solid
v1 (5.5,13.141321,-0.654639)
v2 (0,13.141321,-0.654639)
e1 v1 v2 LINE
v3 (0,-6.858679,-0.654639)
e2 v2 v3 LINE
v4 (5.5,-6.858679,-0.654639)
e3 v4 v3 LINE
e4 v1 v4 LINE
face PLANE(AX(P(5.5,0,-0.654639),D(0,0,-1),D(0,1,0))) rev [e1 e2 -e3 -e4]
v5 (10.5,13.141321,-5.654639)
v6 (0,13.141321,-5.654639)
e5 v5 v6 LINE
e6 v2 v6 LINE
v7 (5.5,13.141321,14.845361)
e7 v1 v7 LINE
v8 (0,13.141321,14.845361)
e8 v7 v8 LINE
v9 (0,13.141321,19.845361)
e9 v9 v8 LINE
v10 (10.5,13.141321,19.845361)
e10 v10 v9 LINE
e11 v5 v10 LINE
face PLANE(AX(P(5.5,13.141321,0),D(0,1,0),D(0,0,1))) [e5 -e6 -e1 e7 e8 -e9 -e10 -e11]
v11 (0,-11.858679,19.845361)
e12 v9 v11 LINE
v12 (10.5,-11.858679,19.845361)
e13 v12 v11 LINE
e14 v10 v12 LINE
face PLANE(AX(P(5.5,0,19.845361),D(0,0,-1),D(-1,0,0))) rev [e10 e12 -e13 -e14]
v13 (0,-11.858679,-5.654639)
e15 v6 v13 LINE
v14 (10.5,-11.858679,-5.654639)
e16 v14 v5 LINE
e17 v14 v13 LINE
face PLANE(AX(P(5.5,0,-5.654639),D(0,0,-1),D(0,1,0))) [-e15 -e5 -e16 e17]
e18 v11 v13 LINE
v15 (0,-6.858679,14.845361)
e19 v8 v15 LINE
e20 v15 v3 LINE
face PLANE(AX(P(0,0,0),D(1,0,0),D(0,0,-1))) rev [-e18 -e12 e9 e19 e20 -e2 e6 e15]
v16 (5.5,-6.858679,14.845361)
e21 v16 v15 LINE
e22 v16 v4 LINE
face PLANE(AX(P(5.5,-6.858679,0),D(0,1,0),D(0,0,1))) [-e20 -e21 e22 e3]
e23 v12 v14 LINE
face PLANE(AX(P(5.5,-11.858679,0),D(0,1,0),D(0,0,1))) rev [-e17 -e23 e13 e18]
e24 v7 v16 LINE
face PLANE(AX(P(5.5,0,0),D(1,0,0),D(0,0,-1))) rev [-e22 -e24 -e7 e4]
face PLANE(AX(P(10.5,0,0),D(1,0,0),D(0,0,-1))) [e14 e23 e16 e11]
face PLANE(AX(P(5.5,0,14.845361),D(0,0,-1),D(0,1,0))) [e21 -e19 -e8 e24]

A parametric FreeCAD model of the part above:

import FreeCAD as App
import Part
import Sketcher

V = App.Vector
Q = App.Units.Quantity

doc = App.newDocument("Part")
body = doc.addObject("PartDesign::Body", "Body")

sketch1 = body.newObject("Sketcher::SketchObject", "Sketch")
sketch1.AttachmentSupport = (doc.getObject("YZ_Plane"), [""])
sketch1.MapMode = "FlatFace"
sketch1.addGeometry([
    Part.LineSegment(V(-6.858679, 14.845361, 0), V(13.141321, 14.845361, 0)),
    Part.LineSegment(V(13.141321, 14.845361, 0), V(13.141321, 19.845361, 0)),
    Part.LineSegment(V(13.141321, 19.845361, 0), V(-11.858679, 19.845361, 0)),
    Part.LineSegment(V(-11.858679, 19.845361, 0), V(-11.858679, -5.654639, 0)),
    Part.LineSegment(V(-11.858679, -5.654639, 0), V(13.141321, -5.654639, 0)),
    Part.LineSegment(V(13.141321, -5.654639, 0), V(13.141321, -0.654639, 0)),
    Part.LineSegment(V(13.141321, -0.654639, 0), V(-6.858679, -0.654639, 0)),
    Part.LineSegment(V(-6.858679, -0.654639, 0), V(-6.858679, 14.845361, 0)),
], False)
sketch1.addConstraint([
    Sketcher.Constraint("Coincident", 0, 2, 1, 1),
    Sketcher.Constraint("Coincident", 1, 2, 2, 1),
    Sketcher.Constraint("Coincident", 2, 2, 3, 1),
    Sketcher.Constraint("Coincident", 3, 2, 4, 1),
    Sketcher.Constraint("Coincident", 4, 2, 5, 1),
    Sketcher.Constraint("Coincident", 5, 2, 6, 1),
    Sketcher.Constraint("Coincident", 6, 2, 7, 1),
    Sketcher.Constraint("Coincident", 7, 2, 0, 1),
    Sketcher.Constraint("Horizontal", 0),
    Sketcher.Constraint("Vertical", 1),
    Sketcher.Constraint("Horizontal", 2),
    Sketcher.Constraint("Vertical", 3),
    Sketcher.Constraint("Horizontal", 4),
    Sketcher.Constraint("Vertical", 5),
    Sketcher.Constraint("Horizontal", 6),
    Sketcher.Constraint("Vertical", 7),
    Sketcher.Constraint("Vertical", 1, 2, 4, 2),
    Sketcher.Constraint("Equal", 1, 5),
    Sketcher.Constraint("DistanceX", 0, 1, 0, 2, Q("20 mm")),
    Sketcher.Constraint("DistanceX", 2, 2, 2, 1, Q("25 mm")),
    Sketcher.Constraint("DistanceY", 1, 1, 1, 2, Q("5 mm")),
    Sketcher.Constraint("DistanceY", 3, 2, 3, 1, Q("25.5 mm")),
    Sketcher.Constraint("DistanceX", -1, 1, 0, 2, Q("13.141321 mm")),
    Sketcher.Constraint("DistanceY", -1, 1, 0, 2, Q("14.845361 mm")),
])
pad1 = body.newObject("PartDesign::Pad", "Pad")
pad1.Profile = sketch1
pad1.Length = 5.5

sketch2 = body.newObject("Sketcher::SketchObject", "Sketch001")
sketch2.AttachmentSupport = (doc.getObject("YZ_Plane"), [""])
sketch2.MapMode = "FlatFace"
sketch2.AttachmentOffset = App.Placement(V(0, 0, 5.5), App.Rotation())
sketch2.addGeometry([
    Part.LineSegment(V(13.141321, 19.845361, 0), V(-11.858679, 19.845361, 0)),
    Part.LineSegment(V(-11.858679, 19.845361, 0), V(-11.858679, -5.654639, 0)),
    Part.LineSegment(V(-11.858679, -5.654639, 0), V(13.141321, -5.654639, 0)),
    Part.LineSegment(V(13.141321, -5.654639, 0), V(13.141321, 19.845361, 0)),
], False)
sketch2.addConstraint([
    Sketcher.Constraint("Coincident", 0, 2, 1, 1),
    Sketcher.Constraint("Coincident", 1, 2, 2, 1),
    Sketcher.Constraint("Coincident", 2, 2, 3, 1),
    Sketcher.Constraint("Coincident", 3, 2, 0, 1),
    Sketcher.Constraint("Horizontal", 0),
    Sketcher.Constraint("Vertical", 1),
    Sketcher.Constraint("Horizontal", 2),
    Sketcher.Constraint("Vertical", 3),
    Sketcher.Constraint("DistanceX", 0, 2, 0, 1, Q("25 mm")),
    Sketcher.Constraint("DistanceY", 1, 2, 1, 1, Q("25.5 mm")),
    Sketcher.Constraint("DistanceX", 0, 2, -1, 1, Q("11.858679 mm")),
    Sketcher.Constraint("DistanceY", -1, 1, 0, 2, Q("19.845361 mm")),
])
pad2 = body.newObject("PartDesign::Pad", "Pad001")
pad2.Profile = sketch2
pad2.Length = 5

doc.recompute()
